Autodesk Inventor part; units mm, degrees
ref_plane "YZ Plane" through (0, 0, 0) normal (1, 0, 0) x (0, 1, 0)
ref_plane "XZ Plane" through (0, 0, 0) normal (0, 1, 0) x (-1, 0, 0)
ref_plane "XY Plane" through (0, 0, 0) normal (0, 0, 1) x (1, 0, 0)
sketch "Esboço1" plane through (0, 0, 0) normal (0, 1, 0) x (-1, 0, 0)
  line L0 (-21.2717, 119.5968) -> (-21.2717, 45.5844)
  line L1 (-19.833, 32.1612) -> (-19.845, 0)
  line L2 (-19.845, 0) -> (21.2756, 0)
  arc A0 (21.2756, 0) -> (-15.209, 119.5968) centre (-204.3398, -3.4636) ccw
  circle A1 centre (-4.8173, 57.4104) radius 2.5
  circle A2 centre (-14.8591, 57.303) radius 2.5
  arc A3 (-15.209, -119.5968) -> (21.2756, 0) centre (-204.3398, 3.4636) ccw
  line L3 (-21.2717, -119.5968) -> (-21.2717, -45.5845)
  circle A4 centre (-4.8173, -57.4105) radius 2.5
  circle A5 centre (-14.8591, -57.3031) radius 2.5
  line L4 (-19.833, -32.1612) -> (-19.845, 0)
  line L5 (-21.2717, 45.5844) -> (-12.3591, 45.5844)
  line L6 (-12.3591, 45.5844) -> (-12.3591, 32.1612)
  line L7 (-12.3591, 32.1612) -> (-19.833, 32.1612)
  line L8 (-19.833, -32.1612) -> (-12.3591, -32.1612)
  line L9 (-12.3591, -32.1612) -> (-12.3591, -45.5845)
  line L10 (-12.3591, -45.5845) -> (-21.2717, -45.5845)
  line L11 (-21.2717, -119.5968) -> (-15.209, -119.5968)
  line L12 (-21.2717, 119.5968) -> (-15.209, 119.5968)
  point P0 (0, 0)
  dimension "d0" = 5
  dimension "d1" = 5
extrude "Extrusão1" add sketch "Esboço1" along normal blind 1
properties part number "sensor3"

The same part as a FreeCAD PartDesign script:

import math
import FreeCAD as App
import Part
import Sketcher
from FreeCAD import Vector

doc = App.newDocument("Part")
body = doc.addObject("PartDesign::Body", "Body")

sketch1 = doc.addObject("Sketcher::SketchObject", "Sketch")
body.addObject(sketch1)
sketch1.AttachmentSupport = (doc.XZ_Plane, [""])
sketch1.MapMode = "FlatFace"
sketch1.addGeometry([
    Part.LineSegment(Vector(15.2, 119.6, 0), Vector(21.3, 119.6, 0)),
    Part.LineSegment(Vector(21.3, 119.6, 0), Vector(21.3, 45.6, 0)),
    Part.LineSegment(Vector(21.3, 45.6, 0), Vector(12.4, 45.6, 0)),
    Part.LineSegment(Vector(12.4, 45.6, 0), Vector(12.4, 32.2, 0)),
    Part.LineSegment(Vector(12.4, 32.2, 0), Vector(19.8, 32.2, 0)),
    Part.LineSegment(Vector(19.8, 32.2, 0), Vector(19.8, 0, 0)),
    Part.LineSegment(Vector(19.8, 0, 0), Vector(19.8, -32.2, 0)),
    Part.LineSegment(Vector(19.8, -32.2, 0), Vector(12.4, -32.2, 0)),
    Part.LineSegment(Vector(12.4, -32.2, 0), Vector(12.4, -45.6, 0)),
    Part.LineSegment(Vector(12.4, -45.6, 0), Vector(21.3, -45.6, 0)),
    Part.LineSegment(Vector(21.3, -45.6, 0), Vector(21.3, -119.6, 0)),
    Part.LineSegment(Vector(21.3, -119.6, 0), Vector(15.2, -119.6, 0)),
    Part.ArcOfCircle(Part.Circle(Vector(204.3, 3.5, 0), Vector(0, 0, 1), 225.6), math.radians(-179), math.radians(-147)),
    Part.ArcOfCircle(Part.Circle(Vector(204.3, -3.5, 0), Vector(0, 0, 1), 225.6), math.radians(147), math.radians(179)),
    Part.Circle(Vector(14.9, 57.3, 0), Vector(0, 0, 1), 2.5),
    Part.Circle(Vector(4.8, 57.4, 0), Vector(0, 0, 1), 2.5),
    Part.Circle(Vector(4.8, -57.4, 0), Vector(0, 0, 1), 2.5),
    Part.Circle(Vector(14.9, -57.3, 0), Vector(0, 0, 1), 2.5),
], False)
sketch1.addConstraint([
    Sketcher.Constraint("Coincident", 0, 2, 1, 1),
    Sketcher.Constraint("Coincident", 1, 2, 2, 1),
    Sketcher.Constraint("Coincident", 2, 2, 3, 1),
    Sketcher.Constraint("Coincident", 3, 2, 4, 1),
    Sketcher.Constraint("Coincident", 4, 2, 5, 1),
    Sketcher.Constraint("Coincident", 5, 2, 6, 1),
    Sketcher.Constraint("Coincident", 6, 2, 7, 1),
    Sketcher.Constraint("Coincident", 7, 2, 8, 1),
    Sketcher.Constraint("Coincident", 8, 2, 9, 1),
    Sketcher.Constraint("Coincident", 9, 2, 10, 1),
    Sketcher.Constraint("Coincident", 10, 2, 11, 1),
    Sketcher.Constraint("Coincident", 11, 2, 12, 2),
    Sketcher.Constraint("Coincident", 12, 1, 13, 2),
    Sketcher.Constraint("Coincident", 13, 1, 0, 1),
    Sketcher.Constraint("Horizontal", 0),
    Sketcher.Constraint("Vertical", 1),
    Sketcher.Constraint("Horizontal", 2),
    Sketcher.Constraint("Vertical", 3),
    Sketcher.Constraint("Horizontal", 4),
    Sketcher.Constraint("Horizontal", 7),
    Sketcher.Constraint("Vertical", 8),
    Sketcher.Constraint("Horizontal", 9),
    Sketcher.Constraint("Vertical", 10),
    Sketcher.Constraint("Horizontal", 11),
    Sketcher.Constraint("Equal", 12, 13),
    Sketcher.Constraint("Equal", 14, 15),
    Sketcher.Constraint("Equal", 15, 16),
    Sketcher.Constraint("Equal", 16, 17),
    Sketcher.Constraint("Symmetric", 12, 3, 13, 3, -1),
    Sketcher.Constraint("Symmetric", 15, 3, 16, 3, -1),
    Sketcher.Constraint("Symmetric", 14, 3, 17, 3, -1),
    Sketcher.Constraint("Symmetric", 4, 2, 6, 2, -1),
    Sketcher.Constraint("Symmetric", 2, 2, 8, 2, -1),
    Sketcher.Constraint("Symmetric", 0, 2, 10, 2, -1),
    Sketcher.Constraint("PointOnObject", 5, 2, -1),
    Sketcher.Constraint("Diameter", 14, 5.0),
    Sketcher.Constraint("Radius", 12, 225.642),
    Sketcher.Constraint("DistanceY", 17, 3, 0, 2, 176.9),
    Sketcher.Constraint("DistanceX", 2, 2, 14, 3, 2.5),
    Sketcher.Constraint("DistanceX", 4, 1, 4, 2, 7.474),
    Sketcher.Constraint("DistanceX", 17, 3, 11, 2, 0.35),
    Sketcher.Constraint("DistanceX", 0, 1, 0, 2, 6.0627),
    Sketcher.Constraint("DistanceY", 1, 2, 1, 1, 74.0124),
    Sketcher.Constraint("DistanceY", 3, 2, 3, 1, 13.4232),
    Sketcher.Constraint("DistanceX", -1, 1, 14, 3, 14.859),
    Sketcher.Constraint("DistanceY", -1, 1, 14, 3, 57.303),
    Sketcher.Constraint("DistanceX", -1, 1, 5, 2, 19.845),
    Sketcher.Constraint("DistanceY", 13, 3, 15, 3, 60.874),
    Sketcher.Constraint("DistanceY", 16, 3, 15, 3, 114.821),
    Sketcher.Constraint("DistanceX", -1, 1, 15, 3, 4.8173),
])
pad1 = doc.addObject("PartDesign::Pad", "Pad")
body.addObject(pad1)
pad1.Profile = sketch1
pad1.Length = 1
pad1.Reversed = True

doc.recompute()
